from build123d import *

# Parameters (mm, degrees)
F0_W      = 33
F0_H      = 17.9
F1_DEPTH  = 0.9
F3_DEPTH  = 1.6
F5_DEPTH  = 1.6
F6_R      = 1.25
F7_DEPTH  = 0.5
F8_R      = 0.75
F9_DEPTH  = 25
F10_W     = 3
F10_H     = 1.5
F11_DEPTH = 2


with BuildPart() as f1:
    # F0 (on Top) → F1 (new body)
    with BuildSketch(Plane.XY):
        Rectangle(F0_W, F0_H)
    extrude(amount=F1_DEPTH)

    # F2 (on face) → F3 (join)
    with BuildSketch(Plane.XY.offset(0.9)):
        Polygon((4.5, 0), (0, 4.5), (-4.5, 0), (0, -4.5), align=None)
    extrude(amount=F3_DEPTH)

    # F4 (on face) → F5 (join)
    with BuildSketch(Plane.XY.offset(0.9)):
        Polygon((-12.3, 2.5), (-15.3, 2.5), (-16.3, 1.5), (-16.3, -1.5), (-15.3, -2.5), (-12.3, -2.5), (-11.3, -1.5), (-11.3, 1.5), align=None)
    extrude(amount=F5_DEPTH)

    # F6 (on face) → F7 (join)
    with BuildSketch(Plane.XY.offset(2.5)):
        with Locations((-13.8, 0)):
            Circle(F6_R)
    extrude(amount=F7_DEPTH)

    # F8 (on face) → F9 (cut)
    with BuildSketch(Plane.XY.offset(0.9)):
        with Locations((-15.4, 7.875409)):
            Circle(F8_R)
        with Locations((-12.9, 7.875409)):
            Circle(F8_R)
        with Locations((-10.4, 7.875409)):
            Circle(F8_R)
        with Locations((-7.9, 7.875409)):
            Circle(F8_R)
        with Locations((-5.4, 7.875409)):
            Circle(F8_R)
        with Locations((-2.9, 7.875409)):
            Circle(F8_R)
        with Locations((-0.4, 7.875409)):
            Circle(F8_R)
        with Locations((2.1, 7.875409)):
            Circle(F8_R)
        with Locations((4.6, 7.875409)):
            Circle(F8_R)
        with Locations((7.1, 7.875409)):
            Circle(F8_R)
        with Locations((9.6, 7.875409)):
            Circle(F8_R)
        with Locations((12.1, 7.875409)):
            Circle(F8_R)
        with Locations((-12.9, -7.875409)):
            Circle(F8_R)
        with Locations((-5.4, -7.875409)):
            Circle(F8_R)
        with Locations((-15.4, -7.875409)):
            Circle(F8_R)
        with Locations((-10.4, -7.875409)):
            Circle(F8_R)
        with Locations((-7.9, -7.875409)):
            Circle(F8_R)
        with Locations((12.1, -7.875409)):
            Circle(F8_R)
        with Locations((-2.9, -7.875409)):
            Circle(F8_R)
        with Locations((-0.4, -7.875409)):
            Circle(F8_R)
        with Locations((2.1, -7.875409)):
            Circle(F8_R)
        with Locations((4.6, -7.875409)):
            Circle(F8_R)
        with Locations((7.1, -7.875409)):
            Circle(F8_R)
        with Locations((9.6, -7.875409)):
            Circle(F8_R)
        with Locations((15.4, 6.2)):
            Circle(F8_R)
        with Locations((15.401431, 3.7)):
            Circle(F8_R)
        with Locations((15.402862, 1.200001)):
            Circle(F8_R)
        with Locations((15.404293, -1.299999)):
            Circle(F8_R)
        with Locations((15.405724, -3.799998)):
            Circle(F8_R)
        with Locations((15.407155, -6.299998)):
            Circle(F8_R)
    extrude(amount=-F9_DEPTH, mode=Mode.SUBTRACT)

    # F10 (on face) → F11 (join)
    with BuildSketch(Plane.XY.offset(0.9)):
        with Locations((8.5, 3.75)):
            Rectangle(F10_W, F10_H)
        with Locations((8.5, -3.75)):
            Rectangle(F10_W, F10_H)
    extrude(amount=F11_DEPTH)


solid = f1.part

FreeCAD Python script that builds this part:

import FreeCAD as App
import Part
import Sketcher

doc = App.newDocument("Part")
body = doc.addObject("PartDesign::Body", "Body")

# Sketch on XY plane
sketch1 = body.newObject("Sketcher::SketchObject", "Sketch")
sketch1.AttachmentSupport = (doc.getObject("XY_Plane"), [""])
sketch1.MapMode = "FlatFace"
sketch1.addGeometry(Part.LineSegment(App.Vector(-16, 9, 0), App.Vector(-16, -9, 0)), False)
sketch1.addGeometry(Part.LineSegment(App.Vector(-16, -9, 0), App.Vector(16, -9, 0)), False)
sketch1.addGeometry(Part.LineSegment(App.Vector(16, -9, 0), App.Vector(16, 9, 0)), False)
sketch1.addGeometry(Part.LineSegment(App.Vector(16, 9, 0), App.Vector(-16, 9, 0)), False)
sketch1.addConstraint(Sketcher.Constraint("Coincident", 0, 2, 1, 1))
sketch1.addConstraint(Sketcher.Constraint("Coincident", 1, 2, 2, 1))
sketch1.addConstraint(Sketcher.Constraint("Coincident", 2, 2, 3, 1))
sketch1.addConstraint(Sketcher.Constraint("Coincident", 3, 2, 0, 1))
sketch1.addConstraint(Sketcher.Constraint("Vertical", 0))
sketch1.addConstraint(Sketcher.Constraint("Horizontal", 1))
sketch1.addConstraint(Sketcher.Constraint("Vertical", 2))
sketch1.addConstraint(Sketcher.Constraint("Horizontal", 3))
sketch1.addConstraint(Sketcher.Constraint("Symmetric", 0, 2, 2, 2, -1, 1))
sketch1.addConstraint(Sketcher.Constraint("DistanceX", 1, 1, 1, 2, 33.0))
sketch1.addConstraint(Sketcher.Constraint("DistanceY", 0, 2, 0, 1, 17.9))
pad1 = body.newObject("PartDesign::Pad", "Pad")
pad1.Profile = sketch1
pad1.Length = 0.9

# Sketch on XY plane
sketch2 = body.newObject("Sketcher::SketchObject", "Sketch001")
sketch2.AttachmentSupport = (doc.getObject("XY_Plane"), [""])
sketch2.MapMode = "FlatFace"
sketch2.AttachmentOffset = App.Placement(App.Vector(0, 0, 0.9), App.Rotation())
sketch2.addGeometry(Part.LineSegment(App.Vector(4, 0, 0), App.Vector(0, 4, 0)), False)
sketch2.addGeometry(Part.LineSegment(App.Vector(0, 4, 0), App.Vector(-4, 0, 0)), False)
sketch2.addGeometry(Part.LineSegment(App.Vector(-4, 0, 0), App.Vector(0, -4, 0)), False)
sketch2.addGeometry(Part.LineSegment(App.Vector(0, -4, 0), App.Vector(4, 0, 0)), False)
sketch2.addConstraint(Sketcher.Constraint("Coincident", 0, 2, 1, 1))
sketch2.addConstraint(Sketcher.Constraint("Coincident", 1, 2, 2, 1))
sketch2.addConstraint(Sketcher.Constraint("Coincident", 2, 2, 3, 1))
sketch2.addConstraint(Sketcher.Constraint("Coincident", 3, 2, 0, 1))
sketch2.addConstraint(Sketcher.Constraint("Symmetric", 0, 2, 2, 2, -1, 1))
sketch2.addConstraint(Sketcher.Constraint("Symmetric", 1, 2, 3, 2, -1, 1))
sketch2.addConstraint(Sketcher.Constraint("PointOnObject", 0, 2, -2))
sketch2.addConstraint(Sketcher.Constraint("PointOnObject", 1, 2, -1))
sketch2.addConstraint(Sketcher.Constraint("Perpendicular", 0, 1))
sketch2.addConstraint(Sketcher.Constraint("DistanceY", 2, 2, 0, 2, 9.0))
pad2 = body.newObject("PartDesign::Pad", "Pad001")
pad2.Profile = sketch2
pad2.Length = 1.6

# Sketch on XY plane
sketch3 = body.newObject("Sketcher::SketchObject", "Sketch002")
sketch3.AttachmentSupport = (doc.getObject("XY_Plane"), [""])
sketch3.MapMode = "FlatFace"
sketch3.AttachmentOffset = App.Placement(App.Vector(0, 0, 0.9), App.Rotation())
sketch3.addGeometry(Part.LineSegment(App.Vector(-12.3, 2.5, 0), App.Vector(-15.3, 2.5, 0)), False)
sketch3.addGeometry(Part.LineSegment(App.Vector(-15.3, 2.5, 0), App.Vector(-16.3, 1.5, 0)), False)
sketch3.addGeometry(Part.LineSegment(App.Vector(-16.3, 1.5, 0), App.Vector(-16.3, -1.5, 0)), False)
sketch3.addGeometry(Part.LineSegment(App.Vector(-16.3, -1.5, 0), App.Vector(-15.3, -2.5, 0)), False)
sketch3.addGeometry(Part.LineSegment(App.Vector(-15.3, -2.5, 0), App.Vector(-12.3, -2.5, 0)), False)
sketch3.addGeometry(Part.LineSegment(App.Vector(-12.3, -2.5, 0), App.Vector(-11.3, -1.5, 0)), False)
sketch3.addGeometry(Part.LineSegment(App.Vector(-11.3, -1.5, 0), App.Vector(-11.3, 1.5, 0)), False)
sketch3.addGeometry(Part.LineSegment(App.Vector(-11.3, 1.5, 0), App.Vector(-12.3, 2.5, 0)), False)
sketch3.addConstraint(Sketcher.Constraint("Coincident", 0, 2, 1, 1))
sketch3.addConstraint(Sketcher.Constraint("Coincident", 1, 2, 2, 1))
sketch3.addConstraint(Sketcher.Constraint("Coincident", 2, 2, 3, 1))
sketch3.addConstraint(Sketcher.Constraint("Coincident", 3, 2, 4, 1))
sketch3.addConstraint(Sketcher.Constraint("Coincident", 4, 2, 5, 1))
sketch3.addConstraint(Sketcher.Constraint("Coincident", 5, 2, 6, 1))
sketch3.addConstraint(Sketcher.Constraint("Coincident", 6, 2, 7, 1))
sketch3.addConstraint(Sketcher.Constraint("Coincident", 7, 2, 0, 1))
sketch3.addConstraint(Sketcher.Constraint("Horizontal", 0))
sketch3.addConstraint(Sketcher.Constraint("Vertical", 2))
sketch3.addConstraint(Sketcher.Constraint("Horizontal", 4))
sketch3.addConstraint(Sketcher.Constraint("Vertical", 6))
sketch3.addConstraint(Sketcher.Constraint("Symmetric", 0, 2, 3, 2, -1))
sketch3.addConstraint(Sketcher.Constraint("Perpendicular", 1, 3))
sketch3.addConstraint(Sketcher.Constraint("Perpendicular", 3, 5))
sketch3.addConstraint(Sketcher.Constraint("Perpendicular", 5, 7))
sketch3.addConstraint(Sketcher.Constraint("Horizontal", 2, 2, 5, 2))
sketch3.addConstraint(Sketcher.Constraint("Horizontal", 1, 2, 6, 2))
sketch3.addConstraint(Sketcher.Constraint("Vertical", 4, 2, 7, 2))
sketch3.addConstraint(Sketcher.Constraint("Equal", 4, 2))
sketch3.addConstraint(Sketcher.Constraint("DistanceX", 0, 2, 0, 1, 3.0))
sketch3.addConstraint(Sketcher.Constraint("DistanceX", 1, 2, 0, 2, 1.0))
sketch3.addConstraint(Sketcher.Constraint("DistanceX", 0, 2, -1, 1, 15.3))
pad3 = body.newObject("PartDesign::Pad", "Pad002")
pad3.Profile = sketch3
pad3.Length = 1.6

# Sketch on XY plane
sketch4 = body.newObject("Sketcher::SketchObject", "Sketch003")
sketch4.AttachmentSupport = (doc.getObject("XY_Plane"), [""])
sketch4.MapMode = "FlatFace"
sketch4.AttachmentOffset = App.Placement(App.Vector(0, 0, 2.5), App.Rotation())
sketch4.addGeometry(Part.Circle(App.Vector(-13.8, 0, 0), App.Vector(0, 0, 1), 1.2), False)
sketch4.addConstraint(Sketcher.Constraint("PointOnObject", 0, 3, -1))
sketch4.addConstraint(Sketcher.Constraint("Diameter", 0, 2.5))
sketch4.addConstraint(Sketcher.Constraint("DistanceX", 0, 3, -1, 1, 13.8))
pad4 = body.newObject("PartDesign::Pad", "Pad003")
pad4.Profile = sketch4
pad4.Length = 0.5

# Sketch on XY plane
sketch5 = body.newObject("Sketcher::SketchObject", "Sketch004")
sketch5.AttachmentSupport = (doc.getObject("XY_Plane"), [""])
sketch5.MapMode = "FlatFace"
sketch5.AttachmentOffset = App.Placement(App.Vector(0, 0, 0.9), App.Rotation())
sketch5.addGeometry(Part.Circle(App.Vector(-15.4, 7.9, 0), App.Vector(0, 0, 1), 0.8), False)
sketch5.addGeometry(Part.Circle(App.Vector(-12.9, 7.9, 0), App.Vector(0, 0, 1), 0.8), False)
sketch5.addGeometry(Part.Circle(App.Vector(-10.4, 7.9, 0), App.Vector(0, 0, 1), 0.8), False)
sketch5.addGeometry(Part.Circle(App.Vector(-7.9, 7.9, 0), App.Vector(0, 0, 1), 0.8), False)
sketch5.addGeometry(Part.Circle(App.Vector(-5.4, 7.9, 0), App.Vector(0, 0, 1), 0.8), False)
sketch5.addGeometry(Part.Circle(App.Vector(-2.9, 7.9, 0), App.Vector(0, 0, 1), 0.8), False)
sketch5.addGeometry(Part.Circle(App.Vector(-0.4, 7.9, 0), App.Vector(0, 0, 1), 0.8), False)
sketch5.addGeometry(Part.Circle(App.Vector(2.1, 7.9, 0), App.Vector(0, 0, 1), 0.8), False)
sketch5.addGeometry(Part.Circle(App.Vector(4.6, 7.9, 0), App.Vector(0, 0, 1), 0.8), False)
sketch5.addGeometry(Part.Circle(App.Vector(7.1, 7.9, 0), App.Vector(0, 0, 1), 0.8), False)
sketch5.addGeometry(Part.Circle(App.Vector(9.6, 7.9, 0), App.Vector(0, 0, 1), 0.8), False)
sketch5.addGeometry(Part.Circle(App.Vector(12.1, 7.9, 0), App.Vector(0, 0, 1), 0.8), False)
sketch5.addGeometry(Part.Circle(App.Vector(-12.9, -7.9, 0), App.Vector(0, 0, 1), 0.8), False)
sketch5.addGeometry(Part.Circle(App.Vector(-5.4, -7.9, 0), App.Vector(0, 0, 1), 0.8), False)
sketch5.addGeometry(Part.Circle(App.Vector(-15.4, -7.9, 0), App.Vector(0, 0, 1), 0.8), False)
sketch5.addGeometry(Part.Circle(App.Vector(-10.4, -7.9, 0), App.Vector(0, 0, 1), 0.8), False)
sketch5.addGeometry(Part.Circle(App.Vector(-7.9, -7.9, 0), App.Vector(0, 0, 1), 0.8), False)
sketch5.addGeometry(Part.Circle(App.Vector(12.1, -7.9, 0), App.Vector(0, 0, 1), 0.8), False)
sketch5.addGeometry(Part.Circle(App.Vector(-2.9, -7.9, 0), App.Vector(0, 0, 1), 0.8), False)
sketch5.addGeometry(Part.Circle(App.Vector(-0.4, -7.9, 0), App.Vector(0, 0, 1), 0.8), False)
sketch5.addGeometry(Part.Circle(App.Vector(2.1, -7.9, 0), App.Vector(0, 0, 1), 0.8), False)
sketch5.addGeometry(Part.Circle(App.Vector(4.6, -7.9, 0), App.Vector(0, 0, 1), 0.8), False)
sketch5.addGeometry(Part.Circle(App.Vector(7.1, -7.9, 0), App.Vector(0, 0, 1), 0.8), False)
sketch5.addGeometry(Part.Circle(App.Vector(9.6, -7.9, 0), App.Vector(0, 0, 1), 0.8), False)
sketch5.addGeometry(Part.Circle(App.Vector(15.4, 6.2, 0), App.Vector(0, 0, 1), 0.8), False)
sketch5.addGeometry(Part.Circle(App.Vector(15.4, 3.7, 0), App.Vector(0, 0, 1), 0.8), False)
sketch5.addGeometry(Part.Circle(App.Vector(15.4, 1.2, 0), App.Vector(0, 0, 1), 0.8), False)
sketch5.addGeometry(Part.Circle(App.Vector(15.4, -1.3, 0), App.Vector(0, 0, 1), 0.8), False)
sketch5.addGeometry(Part.Circle(App.Vector(15.4, -3.8, 0), App.Vector(0, 0, 1), 0.8), False)
sketch5.addGeometry(Part.Circle(App.Vector(15.4, -6.3, 0), App.Vector(0, 0, 1), 0.8), False)
sketch5.addConstraint(Sketcher.Constraint("Equal", 0, 1))
sketch5.addConstraint(Sketcher.Constraint("Equal", 1, 2))
sketch5.addConstraint(Sketcher.Constraint("Equal", 2, 3))
sketch5.addConstraint(Sketcher.Constraint("Equal", 3, 4))
sketch5.addConstraint(Sketcher.Constraint("Equal", 4, 5))
sketch5.addConstraint(Sketcher.Constraint("Equal", 5, 6))
sketch5.addConstraint(Sketcher.Constraint("Equal", 6, 7))
sketch5.addConstraint(Sketcher.Constraint("Equal", 7, 8))
sketch5.addConstraint(Sketcher.Constraint("Equal", 8, 9))
sketch5.addConstraint(Sketcher.Constraint("Equal", 9, 10))
sketch5.addConstraint(Sketcher.Constraint("Equal", 10, 11))
sketch5.addConstraint(Sketcher.Constraint("Equal", 11, 12))
sketch5.addConstraint(Sketcher.Constraint("Equal", 12, 13))
sketch5.addConstraint(Sketcher.Constraint("Equal", 13, 14))
sketch5.addConstraint(Sketcher.Constraint("Equal", 14, 15))
sketch5.addConstraint(Sketcher.Constraint("Equal", 15, 16))
sketch5.addConstraint(Sketcher.Constraint("Equal", 16, 17))
sketch5.addConstraint(Sketcher.Constraint("Equal", 17, 18))
sketch5.addConstraint(Sketcher.Constraint("Equal", 18, 19))
sketch5.addConstraint(Sketcher.Constraint("Equal", 19, 20))
sketch5.addConstraint(Sketcher.Constraint("Equal", 20, 21))
sketch5.addConstraint(Sketcher.Constraint("Equal", 21, 22))
sketch5.addConstraint(Sketcher.Constraint("Equal", 22, 23))
sketch5.addConstraint(Sketcher.Constraint("Equal", 23, 24))
sketch5.addConstraint(Sketcher.Constraint("Equal", 24, 25))
sketch5.addConstraint(Sketcher.Constraint("Equal", 25, 26))
sketch5.addConstraint(Sketcher.Constraint("Equal", 26, 27))
sketch5.addConstraint(Sketcher.Constraint("Equal", 27, 28))
sketch5.addConstraint(Sketcher.Constraint("Equal", 28, 29))
sketch5.addConstraint(Sketcher.Constraint("Symmetric", 1, 3, 12, 3, -1))
sketch5.addConstraint(Sketcher.Constraint("Symmetric", 4, 3, 13, 3, -1))
sketch5.addConstraint(Sketcher.Constraint("Symmetric", 0, 3, 14, 3, -1))
sketch5.addConstraint(Sketcher.Constraint("Symmetric", 2, 3, 15, 3, -1))
sketch5.addConstraint(Sketcher.Constraint("Symmetric", 3, 3, 16, 3, -1))
sketch5.addConstraint(Sketcher.Constraint("Symmetric", 11, 3, 17, 3, -1))
sketch5.addConstraint(Sketcher.Constraint("Symmetric", 5, 3, 18, 3, -1))
sketch5.addConstraint(Sketcher.Constraint("Symmetric", 6, 3, 19, 3, -1))
sketch5.addConstraint(Sketcher.Constraint("Symmetric", 7, 3, 20, 3, -1))
sketch5.addConstraint(Sketcher.Constraint("Symmetric", 8, 3, 21, 3, -1))
sketch5.addConstraint(Sketcher.Constraint("Symmetric", 9, 3, 22, 3, -1))
sketch5.addConstraint(Sketcher.Constraint("Symmetric", 10, 3, 23, 3, -1))
sketch5.addConstraint(Sketcher.Constraint("Horizontal", 0, 3, 1, 3))
sketch5.addConstraint(Sketcher.Constraint("Horizontal", 1, 3, 2, 3))
sketch5.addConstraint(Sketcher.Constraint("Horizontal", 2, 3, 3, 3))
sketch5.addConstraint(Sketcher.Constraint("Horizontal", 3, 3, 4, 3))
sketch5.addConstraint(Sketcher.Constraint("Horizontal", 4, 3, 5, 3))
sketch5.addConstraint(Sketcher.Constraint("Horizontal", 5, 3, 6, 3))
sketch5.addConstraint(Sketcher.Constraint("Horizontal", 6, 3, 7, 3))
sketch5.addConstraint(Sketcher.Constraint("Horizontal", 7, 3, 8, 3))
sketch5.addConstraint(Sketcher.Constraint("Horizontal", 8, 3, 9, 3))
sketch5.addConstraint(Sketcher.Constraint("Horizontal", 9, 3, 10, 3))
sketch5.addConstraint(Sketcher.Constraint("Horizontal", 10, 3, 11, 3))
sketch5.addConstraint(Sketcher.Constraint("Diameter", 0, 1.5))
sketch5.addConstraint(Sketcher.Constraint("DistanceX", 0, 3, 2, 3, 5.0))
sketch5.addConstraint(Sketcher.Constraint("DistanceX", 1, 3, 3, 3, 5.0))
sketch5.addConstraint(Sketcher.Constraint("DistanceX", 2, 3, 4, 3, 5.0))
sketch5.addConstraint(Sketcher.Constraint("DistanceX", 3, 3, 5, 3, 5.0))
sketch5.addConstraint(Sketcher.Constraint("DistanceX", 4, 3, 6, 3, 5.0))
sketch5.addConstraint(Sketcher.Constraint("DistanceX", 5, 3, 7, 3, 5.0))
sketch5.addConstraint(Sketcher.Constraint("DistanceX", 6, 3, 8, 3, 5.0))
sketch5.addConstraint(Sketcher.Constraint("DistanceX", 7, 3, 9, 3, 5.0))
sketch5.addConstraint(Sketcher.Constraint("DistanceX", 8, 3, 10, 3, 5.0))
sketch5.addConstraint(Sketcher.Constraint("DistanceX", 9, 3, 11, 3, 5.0))
sketch5.addConstraint(Sketcher.Constraint("DistanceY", 26, 3, 24, 3, 4.999999))
sketch5.addConstraint(Sketcher.Constraint("DistanceY", 27, 3, 25, 3, 4.999999))
sketch5.addConstraint(Sketcher.Constraint("DistanceY", 28, 3, 26, 3, 4.999999))
sketch5.addConstraint(Sketcher.Constraint("DistanceY", 29, 3, 27, 3, 4.999999))
sketch5.addConstraint(Sketcher.Constraint("DistanceX", 0, 3, -1, 1, 15.4))
sketch5.addConstraint(Sketcher.Constraint("DistanceX", 1, 3, -1, 1, 12.9))
sketch5.addConstraint(Sketcher.Constraint("DistanceX", -1, 1, 24, 3, 15.4))
sketch5.addConstraint(Sketcher.Constraint("DistanceY", -1, 1, 24, 3, 6.2))
sketch5.addConstraint(Sketcher.Constraint("DistanceY", -1, 1, 25, 3, 3.7))
sketch5.addConstraint(Sketcher.Constraint("DistanceY", -1, 1, 0, 3, 7.875409))
sketch5.addConstraint(Sketcher.Constraint("DistanceX", -1, 1, 25, 3, 15.401431))
sketch5.addConstraint(Sketcher.Constraint("DistanceX", 25, 3, 26, 3, 0.001431))
sketch5.addConstraint(Sketcher.Constraint("DistanceX", 26, 3, 27, 3, 0.001431))
sketch5.addConstraint(Sketcher.Constraint("DistanceX", 27, 3, 28, 3, 0.001431))
sketch5.addConstraint(Sketcher.Constraint("DistanceX", 28, 3, 29, 3, 0.001431))
pocket1 = body.newObject("PartDesign::Pocket", "Pocket")
pocket1.Profile = sketch5
pocket1.Length = 25

# Sketch on XY plane
sketch6 = body.newObject("Sketcher::SketchObject", "Sketch005")
sketch6.AttachmentSupport = (doc.getObject("XY_Plane"), [""])
sketch6.MapMode = "FlatFace"
sketch6.AttachmentOffset = App.Placement(App.Vector(0, 0, 0.9), App.Rotation())
sketch6.addGeometry(Part.LineSegment(App.Vector(7, 4.5, 0), App.Vector(7, 3, 0)), False)
sketch6.addGeometry(Part.LineSegment(App.Vector(7, 3, 0), App.Vector(10, 3, 0)), False)
sketch6.addGeometry(Part.LineSegment(App.Vector(10, 3, 0), App.Vector(10, 4.5, 0)), False)
sketch6.addGeometry(Part.LineSegment(App.Vector(10, 4.5, 0), App.Vector(7, 4.5, 0)), False)
sketch6.addGeometry(Part.LineSegment(App.Vector(7, -3, 0), App.Vector(7, -4.5, 0)), False)
sketch6.addGeometry(Part.LineSegment(App.Vector(7, -4.5, 0), App.Vector(10, -4.5, 0)), False)
sketch6.addGeometry(Part.LineSegment(App.Vector(10, -4.5, 0), App.Vector(10, -3, 0)), False)
sketch6.addGeometry(Part.LineSegment(App.Vector(10, -3, 0), App.Vector(7, -3, 0)), False)
sketch6.addConstraint(Sketcher.Constraint("Coincident", 0, 2, 1, 1))
sketch6.addConstraint(Sketcher.Constraint("Coincident", 1, 2, 2, 1))
sketch6.addConstraint(Sketcher.Constraint("Coincident", 2, 2, 3, 1))
sketch6.addConstraint(Sketcher.Constraint("Coincident", 3, 2, 0, 1))
sketch6.addConstraint(Sketcher.Constraint("Coincident", 4, 2, 5, 1))
sketch6.addConstraint(Sketcher.Constraint("Coincident", 5, 2, 6, 1))
sketch6.addConstraint(Sketcher.Constraint("Coincident", 6, 2, 7, 1))
sketch6.addConstraint(Sketcher.Constraint("Coincident", 7, 2, 4, 1))
sketch6.addConstraint(Sketcher.Constraint("Vertical", 0))
sketch6.addConstraint(Sketcher.Constraint("Horizontal", 1))
sketch6.addConstraint(Sketcher.Constraint("Vertical", 2))
sketch6.addConstraint(Sketcher.Constraint("Horizontal", 3))
sketch6.addConstraint(Sketcher.Constraint("Vertical", 4))
sketch6.addConstraint(Sketcher.Constraint("Horizontal", 5))
sketch6.addConstraint(Sketcher.Constraint("Vertical", 6))
sketch6.addConstraint(Sketcher.Constraint("Horizontal", 7))
sketch6.addConstraint(Sketcher.Constraint("Symmetric", 3, 2, 4, 2, -1))
sketch6.addConstraint(Sketcher.Constraint("Symmetric", 1, 2, 6, 2, -1))
sketch6.addConstraint(Sketcher.Constraint("DistanceX", 1, 1, 1, 2, 3.0))
sketch6.addConstraint(Sketcher.Constraint("DistanceY", 0, 2, 0, 1, 1.5))
sketch6.addConstraint(Sketcher.Constraint("DistanceX", -1, 1, 0, 2, 7.0))
sketch6.addConstraint(Sketcher.Constraint("DistanceY", -1, 1, 0, 2, 3.0))
pad5 = body.newObject("PartDesign::Pad", "Pad004")
pad5.Profile = sketch6
pad5.Length = 2

doc.recompute()
